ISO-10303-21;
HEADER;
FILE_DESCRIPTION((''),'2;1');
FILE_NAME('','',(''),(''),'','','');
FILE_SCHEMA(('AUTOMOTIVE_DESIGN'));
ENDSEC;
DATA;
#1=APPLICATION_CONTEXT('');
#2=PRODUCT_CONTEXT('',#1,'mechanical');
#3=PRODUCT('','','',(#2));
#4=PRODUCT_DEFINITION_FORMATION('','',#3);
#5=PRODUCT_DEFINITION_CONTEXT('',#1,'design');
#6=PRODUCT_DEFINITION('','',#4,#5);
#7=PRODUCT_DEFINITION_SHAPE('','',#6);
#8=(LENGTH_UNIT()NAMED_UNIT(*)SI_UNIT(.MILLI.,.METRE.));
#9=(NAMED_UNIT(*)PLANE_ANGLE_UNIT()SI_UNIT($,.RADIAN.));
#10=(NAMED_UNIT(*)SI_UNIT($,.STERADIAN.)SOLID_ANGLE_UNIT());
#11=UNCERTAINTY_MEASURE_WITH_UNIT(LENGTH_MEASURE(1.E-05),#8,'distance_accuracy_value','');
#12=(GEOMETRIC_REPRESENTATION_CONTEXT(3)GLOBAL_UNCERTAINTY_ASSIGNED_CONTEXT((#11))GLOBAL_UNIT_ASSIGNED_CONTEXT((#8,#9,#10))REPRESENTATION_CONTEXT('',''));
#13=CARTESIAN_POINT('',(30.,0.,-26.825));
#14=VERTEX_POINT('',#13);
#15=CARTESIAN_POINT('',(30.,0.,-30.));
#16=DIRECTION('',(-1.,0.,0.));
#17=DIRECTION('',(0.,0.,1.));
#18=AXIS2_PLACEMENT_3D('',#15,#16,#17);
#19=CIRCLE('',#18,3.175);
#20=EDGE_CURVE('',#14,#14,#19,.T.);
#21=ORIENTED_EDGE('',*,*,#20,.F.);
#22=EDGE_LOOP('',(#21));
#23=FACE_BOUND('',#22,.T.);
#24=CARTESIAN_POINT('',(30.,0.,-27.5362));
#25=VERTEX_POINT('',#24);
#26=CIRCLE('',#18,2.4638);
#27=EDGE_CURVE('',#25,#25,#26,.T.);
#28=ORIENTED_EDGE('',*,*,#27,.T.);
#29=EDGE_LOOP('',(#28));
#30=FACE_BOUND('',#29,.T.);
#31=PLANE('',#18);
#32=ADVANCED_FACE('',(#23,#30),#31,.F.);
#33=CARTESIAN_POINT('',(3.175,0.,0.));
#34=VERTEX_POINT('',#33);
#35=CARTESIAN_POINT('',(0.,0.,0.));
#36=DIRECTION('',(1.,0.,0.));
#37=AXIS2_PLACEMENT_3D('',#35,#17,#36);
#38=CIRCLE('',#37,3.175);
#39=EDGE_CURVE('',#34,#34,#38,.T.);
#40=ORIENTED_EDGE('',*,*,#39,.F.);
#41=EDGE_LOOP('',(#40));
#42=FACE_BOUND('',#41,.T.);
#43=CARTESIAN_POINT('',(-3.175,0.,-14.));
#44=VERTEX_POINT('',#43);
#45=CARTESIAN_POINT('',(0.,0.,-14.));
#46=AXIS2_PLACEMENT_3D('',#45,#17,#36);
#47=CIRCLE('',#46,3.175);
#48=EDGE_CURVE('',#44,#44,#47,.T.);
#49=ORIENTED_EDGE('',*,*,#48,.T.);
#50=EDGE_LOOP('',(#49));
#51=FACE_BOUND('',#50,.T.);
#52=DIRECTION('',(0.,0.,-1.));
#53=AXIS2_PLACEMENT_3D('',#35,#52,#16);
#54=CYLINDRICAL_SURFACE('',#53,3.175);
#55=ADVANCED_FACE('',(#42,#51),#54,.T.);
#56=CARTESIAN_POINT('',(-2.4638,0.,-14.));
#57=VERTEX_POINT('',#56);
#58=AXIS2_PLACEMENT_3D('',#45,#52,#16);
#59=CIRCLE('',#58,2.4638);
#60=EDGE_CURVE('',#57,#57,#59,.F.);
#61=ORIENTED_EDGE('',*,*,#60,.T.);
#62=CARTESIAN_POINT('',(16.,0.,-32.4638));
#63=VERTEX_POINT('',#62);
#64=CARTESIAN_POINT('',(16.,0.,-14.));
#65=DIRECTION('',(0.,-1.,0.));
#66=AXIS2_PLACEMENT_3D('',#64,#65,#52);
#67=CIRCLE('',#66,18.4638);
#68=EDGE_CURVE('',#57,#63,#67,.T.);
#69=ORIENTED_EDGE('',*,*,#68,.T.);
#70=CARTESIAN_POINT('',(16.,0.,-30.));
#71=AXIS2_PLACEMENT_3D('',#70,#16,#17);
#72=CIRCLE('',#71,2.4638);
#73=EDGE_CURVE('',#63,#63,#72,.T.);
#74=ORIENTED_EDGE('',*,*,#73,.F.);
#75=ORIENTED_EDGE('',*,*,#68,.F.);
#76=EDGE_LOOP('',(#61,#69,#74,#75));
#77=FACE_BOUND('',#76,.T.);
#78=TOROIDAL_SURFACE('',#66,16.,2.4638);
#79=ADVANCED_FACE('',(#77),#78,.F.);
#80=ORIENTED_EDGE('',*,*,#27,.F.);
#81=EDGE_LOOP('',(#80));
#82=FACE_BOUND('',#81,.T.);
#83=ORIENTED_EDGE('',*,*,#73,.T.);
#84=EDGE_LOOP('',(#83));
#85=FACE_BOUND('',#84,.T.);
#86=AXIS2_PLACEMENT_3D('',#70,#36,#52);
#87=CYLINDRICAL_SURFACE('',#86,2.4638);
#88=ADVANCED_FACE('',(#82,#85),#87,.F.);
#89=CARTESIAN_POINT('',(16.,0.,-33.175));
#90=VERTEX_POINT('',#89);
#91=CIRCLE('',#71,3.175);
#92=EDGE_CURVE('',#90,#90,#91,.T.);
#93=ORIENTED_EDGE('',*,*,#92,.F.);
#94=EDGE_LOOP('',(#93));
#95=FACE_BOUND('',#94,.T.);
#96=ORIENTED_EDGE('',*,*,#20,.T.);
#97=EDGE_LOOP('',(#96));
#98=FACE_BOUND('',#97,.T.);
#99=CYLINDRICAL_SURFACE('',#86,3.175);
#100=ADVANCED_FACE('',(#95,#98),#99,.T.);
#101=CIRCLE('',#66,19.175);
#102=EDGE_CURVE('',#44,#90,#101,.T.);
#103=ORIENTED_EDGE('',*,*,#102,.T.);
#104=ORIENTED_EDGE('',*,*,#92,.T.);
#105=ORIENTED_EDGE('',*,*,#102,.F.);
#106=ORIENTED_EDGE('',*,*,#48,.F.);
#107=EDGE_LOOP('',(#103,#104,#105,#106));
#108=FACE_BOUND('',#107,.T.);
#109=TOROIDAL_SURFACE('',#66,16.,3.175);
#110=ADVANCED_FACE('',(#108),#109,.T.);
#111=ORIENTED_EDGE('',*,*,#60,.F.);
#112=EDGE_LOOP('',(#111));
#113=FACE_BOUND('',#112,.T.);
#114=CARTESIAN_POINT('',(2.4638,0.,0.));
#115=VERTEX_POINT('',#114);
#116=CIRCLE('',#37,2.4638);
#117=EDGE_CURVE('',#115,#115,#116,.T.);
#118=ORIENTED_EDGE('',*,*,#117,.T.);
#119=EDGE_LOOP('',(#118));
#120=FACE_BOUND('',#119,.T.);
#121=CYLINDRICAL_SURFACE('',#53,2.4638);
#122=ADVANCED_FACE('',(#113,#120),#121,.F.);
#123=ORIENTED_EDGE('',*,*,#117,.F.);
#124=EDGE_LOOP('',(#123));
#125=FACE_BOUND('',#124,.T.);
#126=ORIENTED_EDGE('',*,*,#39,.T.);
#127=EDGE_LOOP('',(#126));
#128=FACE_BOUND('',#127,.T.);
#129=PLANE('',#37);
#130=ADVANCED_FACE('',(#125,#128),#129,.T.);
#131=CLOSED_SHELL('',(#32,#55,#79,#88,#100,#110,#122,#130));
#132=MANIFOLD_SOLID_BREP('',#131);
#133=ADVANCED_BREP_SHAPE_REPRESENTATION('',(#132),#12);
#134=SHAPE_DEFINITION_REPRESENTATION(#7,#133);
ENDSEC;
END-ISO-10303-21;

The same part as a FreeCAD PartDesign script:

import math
import FreeCAD as App
import Part
import Sketcher
from FreeCAD import Vector
Q = App.Units.Quantity

doc = App.newDocument("Part")
body = doc.addObject("PartDesign::Body", "Body")

sketch1 = doc.addObject("Sketcher::SketchObject", "Sketch")
body.addObject(sketch1)
sketch1.AttachmentSupport = (doc.XY_Plane, [""])
sketch1.MapMode = "FlatFace"
sketch1.addGeometry([
    Part.Circle(Vector(0, 0, 0), Vector(0, 0, 1), 3.2),
    Part.Circle(Vector(0, 0, 0), Vector(0, 0, 1), 2.5),
], False)
sketch1.addConstraint([
    Sketcher.Constraint("Coincident", 0, 3, -1, 1),
    Sketcher.Constraint("Coincident", 1, 3, -1, 1),
    Sketcher.Constraint("Diameter", 0, Q("6.35 mm")),
    Sketcher.Constraint("Diameter", 1, Q("4.9276 mm")),
])

sketch2 = doc.addObject("Sketcher::SketchObject", "Sketch001")
body.addObject(sketch2)
sketch2.AttachmentSupport = (doc.XZ_Plane, [""])
sketch2.MapMode = "FlatFace"
sketch2.addGeometry([
    Part.LineSegment(Vector(0, 0, 0), Vector(0, -14, 0)),
    Part.ArcOfCircle(Part.Circle(Vector(16, -14, 0), Vector(0, 0, 1), 16), math.radians(180), math.radians(270)),
    Part.LineSegment(Vector(16, -30, 0), Vector(30, -30, 0)),
], False)
sketch2.addConstraint([
    Sketcher.Constraint("Tangent", 0, 2, 1, 1),
    Sketcher.Constraint("Tangent", 1, 2, 2, 1),
    Sketcher.Constraint("Vertical", 0),
    Sketcher.Constraint("Horizontal", 2),
    Sketcher.Constraint("Coincident", 0, 1, -1, 1),
    Sketcher.Constraint("Equal", 2, 0),
    Sketcher.Constraint("Radius", 1, Q("16 mm")),
    Sketcher.Constraint("DistanceX", 2, 1, 2, 2, Q("14 mm")),
])
doc.recompute()

additivepipe = doc.addObject("PartDesign::AdditivePipe", "AdditivePipe")
body.addObject(additivepipe)
additivepipe.Profile = sketch1
additivepipe.Spine = (sketch2, ["Edge1", "Edge2", "Edge3"])

doc.recompute()
